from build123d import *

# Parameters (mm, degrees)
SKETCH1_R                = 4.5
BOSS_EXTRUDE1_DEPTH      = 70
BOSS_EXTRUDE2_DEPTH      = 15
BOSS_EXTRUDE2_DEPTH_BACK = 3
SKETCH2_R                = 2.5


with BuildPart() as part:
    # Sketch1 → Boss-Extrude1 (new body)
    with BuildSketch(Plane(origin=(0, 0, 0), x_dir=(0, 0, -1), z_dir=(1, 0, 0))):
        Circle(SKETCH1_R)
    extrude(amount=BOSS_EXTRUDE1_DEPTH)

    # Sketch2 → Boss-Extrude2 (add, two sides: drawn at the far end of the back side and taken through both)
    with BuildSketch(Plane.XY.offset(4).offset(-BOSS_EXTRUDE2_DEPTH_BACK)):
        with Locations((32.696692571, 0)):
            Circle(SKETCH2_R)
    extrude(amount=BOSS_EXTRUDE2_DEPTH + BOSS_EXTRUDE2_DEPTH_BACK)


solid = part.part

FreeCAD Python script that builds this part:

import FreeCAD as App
import Part
import Sketcher

V = App.Vector
Q = App.Units.Quantity

doc = App.newDocument("Part")
body = doc.addObject("PartDesign::Body", "Body")

# Sketch on YZ plane
sketch1 = body.newObject("Sketcher::SketchObject", "Sketch")
sketch1.AttachmentSupport = (doc.getObject("YZ_Plane"), [""])
sketch1.MapMode = "FlatFace"
sketch1.addGeometry(Part.Circle(V(0, 0, 0), V(0, 0, 1), 4.5), False)
sketch1.addConstraint(Sketcher.Constraint("Coincident", 0, 3, -1, 1))
sketch1.addConstraint(Sketcher.Constraint("Diameter", 0, Q("9 mm")))
pad1 = body.newObject("PartDesign::Pad", "Pad")
pad1.Profile = sketch1
pad1.Length = 70

# Sketch on XY plane
sketch2 = body.newObject("Sketcher::SketchObject", "Sketch001")
sketch2.AttachmentSupport = (doc.getObject("XY_Plane"), [""])
sketch2.MapMode = "FlatFace"
sketch2.AttachmentOffset = App.Placement(V(0, 0, 4), App.Rotation())
sketch2.addGeometry(Part.Circle(V(32.7, 0, 0), V(0, 0, 1), 2.5), False)
sketch2.addConstraint(Sketcher.Constraint("PointOnObject", 0, 3, -1))
sketch2.addConstraint(Sketcher.Constraint("Diameter", 0, Q("5 mm")))
sketch2.addConstraint(Sketcher.Constraint("DistanceX", -1, 1, 0, 3, Q("32.696693 mm")))
pad2 = body.newObject("PartDesign::Pad", "Pad001")
pad2.Profile = sketch2
pad2.Type = "TwoLengths"
pad2.Length = 15
pad2.Length2 = 3

doc.recompute()
